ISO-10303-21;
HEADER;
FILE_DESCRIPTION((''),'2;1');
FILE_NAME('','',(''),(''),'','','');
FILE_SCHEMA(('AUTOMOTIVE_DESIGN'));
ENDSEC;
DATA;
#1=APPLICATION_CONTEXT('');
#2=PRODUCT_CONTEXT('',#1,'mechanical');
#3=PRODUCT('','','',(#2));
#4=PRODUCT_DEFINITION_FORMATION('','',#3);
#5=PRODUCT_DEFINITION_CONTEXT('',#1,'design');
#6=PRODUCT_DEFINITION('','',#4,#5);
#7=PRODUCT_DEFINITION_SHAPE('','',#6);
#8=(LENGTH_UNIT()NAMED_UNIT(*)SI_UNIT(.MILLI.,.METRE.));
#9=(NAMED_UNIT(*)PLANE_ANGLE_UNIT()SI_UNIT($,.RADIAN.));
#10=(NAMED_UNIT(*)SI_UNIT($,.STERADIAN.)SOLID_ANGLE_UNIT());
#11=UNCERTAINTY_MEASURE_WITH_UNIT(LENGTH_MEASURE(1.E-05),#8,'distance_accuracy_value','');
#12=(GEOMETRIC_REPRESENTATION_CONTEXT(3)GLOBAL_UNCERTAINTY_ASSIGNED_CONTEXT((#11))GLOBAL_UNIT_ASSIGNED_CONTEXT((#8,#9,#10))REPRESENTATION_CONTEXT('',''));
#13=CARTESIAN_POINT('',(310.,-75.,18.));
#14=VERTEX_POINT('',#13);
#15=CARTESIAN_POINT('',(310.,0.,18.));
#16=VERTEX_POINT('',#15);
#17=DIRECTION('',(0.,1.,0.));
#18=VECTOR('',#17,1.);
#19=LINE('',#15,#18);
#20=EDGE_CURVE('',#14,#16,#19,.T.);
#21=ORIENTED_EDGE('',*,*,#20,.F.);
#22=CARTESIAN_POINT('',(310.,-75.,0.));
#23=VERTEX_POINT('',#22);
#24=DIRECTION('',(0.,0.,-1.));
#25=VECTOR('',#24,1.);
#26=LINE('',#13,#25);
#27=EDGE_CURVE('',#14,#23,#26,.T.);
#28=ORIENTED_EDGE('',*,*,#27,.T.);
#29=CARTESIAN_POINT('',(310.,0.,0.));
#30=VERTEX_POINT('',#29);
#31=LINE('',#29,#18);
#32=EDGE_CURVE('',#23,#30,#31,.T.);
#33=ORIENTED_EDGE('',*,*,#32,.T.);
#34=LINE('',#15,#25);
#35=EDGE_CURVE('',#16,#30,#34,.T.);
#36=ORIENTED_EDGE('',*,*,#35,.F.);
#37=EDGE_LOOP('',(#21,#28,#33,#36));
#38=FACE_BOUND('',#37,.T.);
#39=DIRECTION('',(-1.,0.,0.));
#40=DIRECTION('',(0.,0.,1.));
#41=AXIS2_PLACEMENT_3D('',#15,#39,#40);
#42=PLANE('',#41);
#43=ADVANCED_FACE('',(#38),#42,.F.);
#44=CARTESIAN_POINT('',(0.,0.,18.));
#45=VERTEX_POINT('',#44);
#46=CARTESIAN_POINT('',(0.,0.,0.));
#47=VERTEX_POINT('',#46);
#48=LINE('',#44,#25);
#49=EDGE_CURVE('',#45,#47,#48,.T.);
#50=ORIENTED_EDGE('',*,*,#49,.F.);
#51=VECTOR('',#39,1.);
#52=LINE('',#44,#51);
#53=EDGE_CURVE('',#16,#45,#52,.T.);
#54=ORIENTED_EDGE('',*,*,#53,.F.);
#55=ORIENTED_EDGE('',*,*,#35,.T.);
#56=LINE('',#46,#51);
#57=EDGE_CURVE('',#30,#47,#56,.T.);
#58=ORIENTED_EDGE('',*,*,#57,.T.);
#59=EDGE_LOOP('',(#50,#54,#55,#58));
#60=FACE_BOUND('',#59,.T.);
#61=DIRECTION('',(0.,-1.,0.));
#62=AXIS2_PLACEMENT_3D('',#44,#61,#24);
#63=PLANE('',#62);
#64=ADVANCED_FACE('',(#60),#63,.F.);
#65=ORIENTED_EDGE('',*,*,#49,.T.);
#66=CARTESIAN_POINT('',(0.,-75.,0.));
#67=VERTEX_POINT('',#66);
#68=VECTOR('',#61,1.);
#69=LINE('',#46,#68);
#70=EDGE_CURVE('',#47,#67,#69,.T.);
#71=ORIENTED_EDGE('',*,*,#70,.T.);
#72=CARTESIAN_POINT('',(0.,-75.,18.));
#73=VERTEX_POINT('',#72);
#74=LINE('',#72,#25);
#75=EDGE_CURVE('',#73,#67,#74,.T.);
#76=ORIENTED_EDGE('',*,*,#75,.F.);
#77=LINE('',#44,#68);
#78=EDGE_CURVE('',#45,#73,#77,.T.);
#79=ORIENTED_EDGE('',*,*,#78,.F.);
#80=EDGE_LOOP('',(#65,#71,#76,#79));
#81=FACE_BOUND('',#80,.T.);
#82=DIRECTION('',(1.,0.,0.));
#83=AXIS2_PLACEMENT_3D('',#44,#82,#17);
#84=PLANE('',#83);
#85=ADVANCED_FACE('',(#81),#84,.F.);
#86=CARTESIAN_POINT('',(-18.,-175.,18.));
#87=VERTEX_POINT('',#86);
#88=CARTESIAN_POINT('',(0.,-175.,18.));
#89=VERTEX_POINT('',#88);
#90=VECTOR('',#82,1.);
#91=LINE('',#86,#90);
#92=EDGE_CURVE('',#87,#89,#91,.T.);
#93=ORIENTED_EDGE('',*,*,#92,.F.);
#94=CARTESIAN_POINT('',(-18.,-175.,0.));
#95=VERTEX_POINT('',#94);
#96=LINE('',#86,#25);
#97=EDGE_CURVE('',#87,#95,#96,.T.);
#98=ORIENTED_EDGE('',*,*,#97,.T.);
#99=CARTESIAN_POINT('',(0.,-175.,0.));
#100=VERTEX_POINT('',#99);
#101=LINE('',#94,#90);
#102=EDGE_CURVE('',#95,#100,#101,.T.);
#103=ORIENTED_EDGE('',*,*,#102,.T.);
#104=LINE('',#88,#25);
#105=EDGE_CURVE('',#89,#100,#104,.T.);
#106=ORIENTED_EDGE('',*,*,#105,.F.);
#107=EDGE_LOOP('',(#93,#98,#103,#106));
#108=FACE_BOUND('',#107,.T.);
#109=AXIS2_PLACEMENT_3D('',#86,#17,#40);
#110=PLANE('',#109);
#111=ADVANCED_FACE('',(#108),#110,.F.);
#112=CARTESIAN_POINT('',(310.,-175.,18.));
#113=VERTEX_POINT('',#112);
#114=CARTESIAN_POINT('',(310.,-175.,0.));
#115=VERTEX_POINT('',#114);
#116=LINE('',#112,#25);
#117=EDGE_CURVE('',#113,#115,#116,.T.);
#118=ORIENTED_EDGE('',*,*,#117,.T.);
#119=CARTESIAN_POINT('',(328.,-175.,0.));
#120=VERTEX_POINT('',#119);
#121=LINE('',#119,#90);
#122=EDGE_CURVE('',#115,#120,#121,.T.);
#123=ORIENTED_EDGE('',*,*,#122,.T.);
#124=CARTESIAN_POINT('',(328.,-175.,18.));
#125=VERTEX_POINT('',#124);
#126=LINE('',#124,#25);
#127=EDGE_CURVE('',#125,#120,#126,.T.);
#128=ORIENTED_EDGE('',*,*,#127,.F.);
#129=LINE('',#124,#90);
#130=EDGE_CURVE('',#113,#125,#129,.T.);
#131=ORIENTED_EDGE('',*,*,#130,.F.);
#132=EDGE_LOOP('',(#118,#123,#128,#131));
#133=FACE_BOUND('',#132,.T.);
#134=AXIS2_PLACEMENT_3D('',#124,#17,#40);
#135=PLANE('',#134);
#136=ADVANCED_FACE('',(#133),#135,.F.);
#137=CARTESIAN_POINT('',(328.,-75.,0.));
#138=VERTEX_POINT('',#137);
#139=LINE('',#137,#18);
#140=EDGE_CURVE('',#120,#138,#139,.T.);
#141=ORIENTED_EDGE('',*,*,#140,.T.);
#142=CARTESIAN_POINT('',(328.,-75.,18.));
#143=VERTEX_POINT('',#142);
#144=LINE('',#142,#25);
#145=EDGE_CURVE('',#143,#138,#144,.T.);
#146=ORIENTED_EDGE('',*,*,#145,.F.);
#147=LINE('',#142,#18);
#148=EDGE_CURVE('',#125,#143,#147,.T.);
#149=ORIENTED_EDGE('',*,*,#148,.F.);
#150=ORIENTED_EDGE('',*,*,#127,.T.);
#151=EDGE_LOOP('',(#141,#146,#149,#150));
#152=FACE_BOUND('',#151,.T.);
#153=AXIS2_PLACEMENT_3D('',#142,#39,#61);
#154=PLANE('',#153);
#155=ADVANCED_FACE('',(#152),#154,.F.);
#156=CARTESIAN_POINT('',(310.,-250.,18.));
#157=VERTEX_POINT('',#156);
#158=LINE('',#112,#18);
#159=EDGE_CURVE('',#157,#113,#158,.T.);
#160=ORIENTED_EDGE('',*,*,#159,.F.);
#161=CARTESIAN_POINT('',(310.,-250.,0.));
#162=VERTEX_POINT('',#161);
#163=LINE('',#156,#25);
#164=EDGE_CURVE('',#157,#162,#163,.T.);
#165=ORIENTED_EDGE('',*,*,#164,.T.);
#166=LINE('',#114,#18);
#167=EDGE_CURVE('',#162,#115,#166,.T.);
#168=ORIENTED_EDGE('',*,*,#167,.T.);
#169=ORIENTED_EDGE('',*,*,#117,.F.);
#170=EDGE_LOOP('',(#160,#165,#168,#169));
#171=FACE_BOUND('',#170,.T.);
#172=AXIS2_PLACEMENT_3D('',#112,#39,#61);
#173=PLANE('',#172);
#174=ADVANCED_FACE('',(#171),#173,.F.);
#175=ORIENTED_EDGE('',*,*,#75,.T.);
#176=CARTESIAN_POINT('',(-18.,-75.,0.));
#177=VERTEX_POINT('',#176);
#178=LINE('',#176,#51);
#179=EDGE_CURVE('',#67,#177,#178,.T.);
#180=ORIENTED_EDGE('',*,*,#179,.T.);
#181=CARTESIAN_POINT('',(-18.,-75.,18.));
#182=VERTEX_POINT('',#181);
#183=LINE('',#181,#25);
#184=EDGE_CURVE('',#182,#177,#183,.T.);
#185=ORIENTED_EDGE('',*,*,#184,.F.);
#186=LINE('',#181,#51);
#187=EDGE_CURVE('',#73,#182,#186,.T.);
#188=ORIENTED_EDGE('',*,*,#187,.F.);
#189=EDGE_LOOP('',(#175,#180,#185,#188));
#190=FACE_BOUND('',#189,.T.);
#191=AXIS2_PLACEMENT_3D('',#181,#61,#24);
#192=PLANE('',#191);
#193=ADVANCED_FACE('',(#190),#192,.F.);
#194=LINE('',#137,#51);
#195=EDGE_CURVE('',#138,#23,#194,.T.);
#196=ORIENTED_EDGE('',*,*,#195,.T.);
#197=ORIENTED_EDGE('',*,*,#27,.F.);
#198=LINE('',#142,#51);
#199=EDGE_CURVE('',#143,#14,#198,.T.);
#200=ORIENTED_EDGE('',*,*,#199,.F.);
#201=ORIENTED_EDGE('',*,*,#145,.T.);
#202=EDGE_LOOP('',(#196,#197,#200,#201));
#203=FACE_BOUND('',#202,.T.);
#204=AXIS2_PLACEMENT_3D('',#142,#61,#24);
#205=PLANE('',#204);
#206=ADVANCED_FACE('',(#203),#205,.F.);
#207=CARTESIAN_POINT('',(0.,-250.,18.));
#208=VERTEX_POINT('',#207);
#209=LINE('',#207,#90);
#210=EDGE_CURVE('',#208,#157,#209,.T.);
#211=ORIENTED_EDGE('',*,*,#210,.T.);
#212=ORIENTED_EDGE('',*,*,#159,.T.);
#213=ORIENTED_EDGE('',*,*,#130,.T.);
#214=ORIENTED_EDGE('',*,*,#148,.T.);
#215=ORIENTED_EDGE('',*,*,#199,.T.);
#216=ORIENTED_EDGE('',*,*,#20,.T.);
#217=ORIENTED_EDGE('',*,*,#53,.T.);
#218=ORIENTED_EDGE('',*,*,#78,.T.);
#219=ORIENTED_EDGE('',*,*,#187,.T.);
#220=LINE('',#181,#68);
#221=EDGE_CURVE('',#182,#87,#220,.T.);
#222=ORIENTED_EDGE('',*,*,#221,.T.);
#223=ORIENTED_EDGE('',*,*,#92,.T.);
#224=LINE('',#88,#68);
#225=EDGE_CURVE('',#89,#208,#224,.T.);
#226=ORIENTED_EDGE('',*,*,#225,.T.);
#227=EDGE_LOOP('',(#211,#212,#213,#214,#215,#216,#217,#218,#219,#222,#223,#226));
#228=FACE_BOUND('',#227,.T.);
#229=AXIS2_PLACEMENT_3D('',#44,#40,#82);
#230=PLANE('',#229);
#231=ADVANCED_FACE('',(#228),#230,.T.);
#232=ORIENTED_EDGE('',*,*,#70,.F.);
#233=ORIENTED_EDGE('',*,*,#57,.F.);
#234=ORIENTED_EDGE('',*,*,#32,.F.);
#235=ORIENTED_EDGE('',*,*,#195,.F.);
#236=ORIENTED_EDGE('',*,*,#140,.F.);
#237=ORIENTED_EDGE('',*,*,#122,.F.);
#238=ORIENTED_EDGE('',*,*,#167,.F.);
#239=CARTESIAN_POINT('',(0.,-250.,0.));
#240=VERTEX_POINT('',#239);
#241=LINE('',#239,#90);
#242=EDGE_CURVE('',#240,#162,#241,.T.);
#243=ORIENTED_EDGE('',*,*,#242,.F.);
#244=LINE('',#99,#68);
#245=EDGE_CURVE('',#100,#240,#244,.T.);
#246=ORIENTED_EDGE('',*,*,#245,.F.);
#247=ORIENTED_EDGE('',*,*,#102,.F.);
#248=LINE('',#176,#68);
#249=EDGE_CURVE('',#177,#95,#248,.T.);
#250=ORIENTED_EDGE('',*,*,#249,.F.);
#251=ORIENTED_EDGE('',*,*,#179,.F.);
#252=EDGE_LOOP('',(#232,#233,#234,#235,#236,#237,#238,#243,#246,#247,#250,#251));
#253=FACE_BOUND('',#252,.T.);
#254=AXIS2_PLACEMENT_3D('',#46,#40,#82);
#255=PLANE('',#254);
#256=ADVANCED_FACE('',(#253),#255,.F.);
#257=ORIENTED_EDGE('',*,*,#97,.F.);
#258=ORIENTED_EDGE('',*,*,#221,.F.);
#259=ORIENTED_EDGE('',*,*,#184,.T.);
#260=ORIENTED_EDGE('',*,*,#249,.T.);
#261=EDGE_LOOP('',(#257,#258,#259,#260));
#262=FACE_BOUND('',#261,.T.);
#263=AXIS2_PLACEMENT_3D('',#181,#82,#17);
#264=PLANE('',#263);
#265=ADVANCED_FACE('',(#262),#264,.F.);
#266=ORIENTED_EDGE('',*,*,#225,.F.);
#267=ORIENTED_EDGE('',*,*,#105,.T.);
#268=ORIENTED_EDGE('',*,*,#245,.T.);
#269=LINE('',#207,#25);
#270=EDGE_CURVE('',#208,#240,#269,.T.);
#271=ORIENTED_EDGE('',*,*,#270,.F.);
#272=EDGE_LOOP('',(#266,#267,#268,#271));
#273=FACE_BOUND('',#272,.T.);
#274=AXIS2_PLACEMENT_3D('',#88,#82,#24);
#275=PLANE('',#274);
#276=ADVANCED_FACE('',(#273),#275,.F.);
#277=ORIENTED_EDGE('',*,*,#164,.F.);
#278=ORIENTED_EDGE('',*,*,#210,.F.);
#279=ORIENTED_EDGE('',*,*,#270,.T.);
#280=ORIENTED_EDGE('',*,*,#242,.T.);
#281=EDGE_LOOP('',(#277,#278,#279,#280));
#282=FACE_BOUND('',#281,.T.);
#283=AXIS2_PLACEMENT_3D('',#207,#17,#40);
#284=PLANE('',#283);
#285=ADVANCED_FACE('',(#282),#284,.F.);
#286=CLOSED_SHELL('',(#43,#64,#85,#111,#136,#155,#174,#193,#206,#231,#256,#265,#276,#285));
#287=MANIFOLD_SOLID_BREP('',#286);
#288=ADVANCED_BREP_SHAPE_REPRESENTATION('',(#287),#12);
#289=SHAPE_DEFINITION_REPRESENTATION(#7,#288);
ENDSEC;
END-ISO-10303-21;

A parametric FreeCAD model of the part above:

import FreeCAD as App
import Part
import Sketcher

V = App.Vector
Q = App.Units.Quantity


def add_polygon(sketch, points):
    """Adds a closed chain of lines whose ends are joined by coincident constraints."""
    first, n = sketch.GeometryCount, len(points)
    for a, b in zip(points, points[1:] + points[:1]):
        sketch.addGeometry(Part.LineSegment(App.Vector(*a, 0), App.Vector(*b, 0)), False)
    for i in range(n):
        sketch.addConstraint(Sketcher.Constraint("Coincident", first + i, 2, first + (i + 1) % n, 1))

doc = App.newDocument("Part")
params = doc.addObject("Spreadsheet::Sheet", "Params")
for row, (alias, value) in enumerate([
    ("sketch1_width", "310 mm"),
    ("sketch1_width2", "18 mm"),
    ("sketch1_height", "75 mm"),
    ("sketch1_height2", "100 mm"),
    ("pad1_length", "18 mm"),
], start=1):
    params.set(f"A{row}", alias)
    params.set(f"B{row}", "=" + value)
    params.setAlias(f"B{row}", alias)

body = doc.addObject("PartDesign::Body", "Body")

# Sketch on XY plane
sketch1 = body.newObject("Sketcher::SketchObject", "Sketch")
sketch1.AttachmentSupport = (doc.getObject("XY_Plane"), [""])
sketch1.MapMode = "FlatFace"
add_polygon(sketch1, [(0, -175), (0, -250), (310, -250), (310, -175), (328, -175), (328, -75), (310, -75), (310, 0), (0, 0), (0, -75), (-18, -75), (-18, -175)])  # lines 0-11
sketch1.addConstraint(Sketcher.Constraint("Vertical", 0))
sketch1.addConstraint(Sketcher.Constraint("Horizontal", 1))
sketch1.addConstraint(Sketcher.Constraint("Vertical", 2))
sketch1.addConstraint(Sketcher.Constraint("Horizontal", 3))
sketch1.addConstraint(Sketcher.Constraint("Vertical", 4))
sketch1.addConstraint(Sketcher.Constraint("Horizontal", 5))
sketch1.addConstraint(Sketcher.Constraint("Vertical", 6))
sketch1.addConstraint(Sketcher.Constraint("Horizontal", 7))
sketch1.addConstraint(Sketcher.Constraint("Vertical", 8))
sketch1.addConstraint(Sketcher.Constraint("Horizontal", 9))
sketch1.addConstraint(Sketcher.Constraint("Vertical", 10))
sketch1.addConstraint(Sketcher.Constraint("Horizontal", 11))
sketch1.addConstraint(Sketcher.Constraint("Coincident", 7, 2, -1, 1))
sketch1.addConstraint(Sketcher.Constraint("PointOnObject", 0, 2, -2))
sketch1.addConstraint(Sketcher.Constraint("Horizontal", 5, 2, 8, 2))
sketch1.addConstraint(Sketcher.Constraint("Horizontal", 3, 2, 10, 2))
sketch1.addConstraint(Sketcher.Constraint("Vertical", 2, 2, 5, 2))
sketch1.addConstraint(Sketcher.Constraint("Equal", 5, 9))
sketch1.addConstraint(Sketcher.Constraint("Equal", 2, 6))
sketch1.addConstraint(Sketcher.Constraint("DistanceX", 1, 1, 1, 2, Q("310 mm")))
sketch1.addConstraint(Sketcher.Constraint("DistanceX", 3, 1, 3, 2, Q("18 mm")))
sketch1.addConstraint(Sketcher.Constraint("DistanceY", 0, 2, 0, 1, Q("75 mm")))
sketch1.addConstraint(Sketcher.Constraint("DistanceY", 4, 1, 4, 2, Q("100 mm")))
sketch1.setExpression("Constraints[31]", "Params.sketch1_width")
sketch1.setExpression("Constraints[32]", "Params.sketch1_width2")
sketch1.setExpression("Constraints[33]", "Params.sketch1_height")
sketch1.setExpression("Constraints[34]", "Params.sketch1_height2")
pad1 = body.newObject("PartDesign::Pad", "Pad")
pad1.Profile = sketch1
pad1.setExpression("Length", "Params.pad1_length")

doc.recompute()
